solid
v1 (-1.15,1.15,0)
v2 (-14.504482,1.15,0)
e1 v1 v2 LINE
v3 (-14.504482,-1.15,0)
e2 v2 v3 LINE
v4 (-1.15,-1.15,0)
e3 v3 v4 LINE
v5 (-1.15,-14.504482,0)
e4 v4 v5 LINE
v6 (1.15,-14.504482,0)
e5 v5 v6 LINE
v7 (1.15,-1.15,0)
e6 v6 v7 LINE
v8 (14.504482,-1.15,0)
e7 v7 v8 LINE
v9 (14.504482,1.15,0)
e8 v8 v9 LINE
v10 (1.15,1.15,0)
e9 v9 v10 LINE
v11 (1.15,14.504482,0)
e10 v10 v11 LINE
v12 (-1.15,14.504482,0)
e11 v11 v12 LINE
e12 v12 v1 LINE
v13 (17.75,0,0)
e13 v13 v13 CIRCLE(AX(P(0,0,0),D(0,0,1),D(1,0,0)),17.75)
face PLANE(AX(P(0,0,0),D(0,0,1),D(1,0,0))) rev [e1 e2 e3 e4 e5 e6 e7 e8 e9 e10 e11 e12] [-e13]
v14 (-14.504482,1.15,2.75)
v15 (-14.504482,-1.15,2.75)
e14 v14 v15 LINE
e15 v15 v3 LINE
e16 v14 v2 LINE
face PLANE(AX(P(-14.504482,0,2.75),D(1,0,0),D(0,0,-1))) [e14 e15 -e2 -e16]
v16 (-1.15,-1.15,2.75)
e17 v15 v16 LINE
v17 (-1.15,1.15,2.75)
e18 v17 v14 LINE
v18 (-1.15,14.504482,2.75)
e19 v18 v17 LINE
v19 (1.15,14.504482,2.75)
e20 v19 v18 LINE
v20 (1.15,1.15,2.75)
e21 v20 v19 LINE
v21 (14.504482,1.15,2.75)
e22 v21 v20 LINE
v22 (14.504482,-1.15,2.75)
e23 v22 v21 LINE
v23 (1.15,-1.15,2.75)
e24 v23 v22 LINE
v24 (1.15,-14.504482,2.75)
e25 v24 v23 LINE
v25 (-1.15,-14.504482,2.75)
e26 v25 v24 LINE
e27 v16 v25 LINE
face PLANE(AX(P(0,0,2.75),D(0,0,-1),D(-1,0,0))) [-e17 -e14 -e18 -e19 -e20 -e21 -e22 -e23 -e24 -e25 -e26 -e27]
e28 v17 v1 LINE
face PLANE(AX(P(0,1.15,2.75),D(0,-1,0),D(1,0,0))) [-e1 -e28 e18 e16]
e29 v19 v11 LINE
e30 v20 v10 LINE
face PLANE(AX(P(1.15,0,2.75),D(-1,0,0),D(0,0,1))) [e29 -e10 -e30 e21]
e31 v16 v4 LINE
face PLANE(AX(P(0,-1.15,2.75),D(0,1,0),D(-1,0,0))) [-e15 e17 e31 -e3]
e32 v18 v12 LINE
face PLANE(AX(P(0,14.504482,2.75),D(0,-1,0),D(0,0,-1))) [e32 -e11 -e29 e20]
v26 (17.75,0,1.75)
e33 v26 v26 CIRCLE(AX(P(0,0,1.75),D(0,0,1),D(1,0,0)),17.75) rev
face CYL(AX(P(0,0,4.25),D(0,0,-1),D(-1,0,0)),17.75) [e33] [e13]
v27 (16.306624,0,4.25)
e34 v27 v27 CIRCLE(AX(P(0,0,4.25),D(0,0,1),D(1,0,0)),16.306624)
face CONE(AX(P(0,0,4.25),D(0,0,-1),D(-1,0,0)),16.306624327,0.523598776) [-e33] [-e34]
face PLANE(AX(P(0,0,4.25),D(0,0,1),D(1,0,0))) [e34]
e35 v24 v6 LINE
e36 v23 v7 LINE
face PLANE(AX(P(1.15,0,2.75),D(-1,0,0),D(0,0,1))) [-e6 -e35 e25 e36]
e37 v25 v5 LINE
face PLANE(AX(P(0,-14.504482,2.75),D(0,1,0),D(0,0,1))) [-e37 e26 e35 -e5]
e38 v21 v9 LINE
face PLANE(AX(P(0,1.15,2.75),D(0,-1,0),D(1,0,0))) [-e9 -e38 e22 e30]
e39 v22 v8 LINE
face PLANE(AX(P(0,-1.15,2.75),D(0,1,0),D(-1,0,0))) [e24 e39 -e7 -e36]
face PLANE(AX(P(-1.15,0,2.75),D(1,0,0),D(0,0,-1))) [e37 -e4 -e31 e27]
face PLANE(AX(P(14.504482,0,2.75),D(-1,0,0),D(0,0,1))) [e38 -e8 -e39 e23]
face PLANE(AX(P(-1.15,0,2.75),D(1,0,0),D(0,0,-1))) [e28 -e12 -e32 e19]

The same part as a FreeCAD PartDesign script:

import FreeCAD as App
import Part
import Sketcher


def edges_at(feature, points):
    """Names of the edges that pass closest to the given points."""
    edges = feature.Shape.Edges
    near = lambda p: min(range(len(edges)), key=lambda i: edges[i].distToShape(Part.Vertex(*p))[0])
    return sorted({f"Edge{near(p) + 1}" for p in points})

doc = App.newDocument("Part")
body = doc.addObject("PartDesign::Body", "Body")

sketch1 = body.newObject("Sketcher::SketchObject", "Sketch")
sketch1.AttachmentSupport = (doc.getObject("XY_Plane"), [""])
sketch1.MapMode = "FlatFace"
sketch1.addGeometry(Part.Circle(App.Vector(0, 0, 0), App.Vector(0, 0, 1), 18), False)
sketch1.addConstraint([
    Sketcher.Constraint("Coincident", 0, 3, -1, 1),
    Sketcher.Constraint("Diameter", 0, 35.5),
])
pad1 = body.newObject("PartDesign::Pad", "Pad")
pad1.Profile = sketch1
pad1.Length = 4.25

sketch2 = body.newObject("Sketcher::SketchObject", "Sketch001")
sketch2.AttachmentSupport = (doc.getObject("XY_Plane"), [""])
sketch2.MapMode = "FlatFace"
sketch2.addGeometry([
    Part.LineSegment(App.Vector(14.5, 1.1, 0), App.Vector(14.5, -1.1, 0)),
    Part.LineSegment(App.Vector(14.5, -1.1, 0), App.Vector(1.1, -1.1, 0)),
    Part.LineSegment(App.Vector(1.1, -1.1, 0), App.Vector(1.1, -14.5, 0)),
    Part.LineSegment(App.Vector(1.1, -14.5, 0), App.Vector(-1.1, -14.5, 0)),
    Part.LineSegment(App.Vector(-1.1, -14.5, 0), App.Vector(-1.1, -1.1, 0)),
    Part.LineSegment(App.Vector(-1.1, -1.1, 0), App.Vector(-14.5, -1.1, 0)),
    Part.LineSegment(App.Vector(-14.5, -1.1, 0), App.Vector(-14.5, 1.1, 0)),
    Part.LineSegment(App.Vector(-14.5, 1.1, 0), App.Vector(-1.1, 1.1, 0)),
    Part.LineSegment(App.Vector(-1.1, 1.1, 0), App.Vector(-1.1, 14.5, 0)),
    Part.LineSegment(App.Vector(-1.1, 14.5, 0), App.Vector(1.1, 14.5, 0)),
    Part.LineSegment(App.Vector(1.1, 14.5, 0), App.Vector(1.1, 1.1, 0)),
    Part.LineSegment(App.Vector(1.1, 1.1, 0), App.Vector(14.5, 1.1, 0)),
], False)
sketch2.addConstraint([
    Sketcher.Constraint("Coincident", 0, 2, 1, 1),
    Sketcher.Constraint("Coincident", 1, 2, 2, 1),
    Sketcher.Constraint("Coincident", 2, 2, 3, 1),
    Sketcher.Constraint("Coincident", 3, 2, 4, 1),
    Sketcher.Constraint("Coincident", 4, 2, 5, 1),
    Sketcher.Constraint("Coincident", 5, 2, 6, 1),
    Sketcher.Constraint("Coincident", 6, 2, 7, 1),
    Sketcher.Constraint("Coincident", 7, 2, 8, 1),
    Sketcher.Constraint("Coincident", 8, 2, 9, 1),
    Sketcher.Constraint("Coincident", 9, 2, 10, 1),
    Sketcher.Constraint("Coincident", 10, 2, 11, 1),
    Sketcher.Constraint("Coincident", 11, 2, 0, 1),
    Sketcher.Constraint("Vertical", 0),
    Sketcher.Constraint("Horizontal", 1),
    Sketcher.Constraint("Vertical", 2),
    Sketcher.Constraint("Horizontal", 3),
    Sketcher.Constraint("Vertical", 4),
    Sketcher.Constraint("Horizontal", 5),
    Sketcher.Constraint("Vertical", 6),
    Sketcher.Constraint("Horizontal", 7),
    Sketcher.Constraint("Vertical", 8),
    Sketcher.Constraint("Horizontal", 9),
    Sketcher.Constraint("Vertical", 10),
    Sketcher.Constraint("Horizontal", 11),
    Sketcher.Constraint("Symmetric", 0, 2, 6, 2, -1, 1),
    Sketcher.Constraint("Symmetric", 2, 2, 8, 2, -1, 1),
    Sketcher.Constraint("Symmetric", 4, 2, 10, 2, -1, 1),
    Sketcher.Constraint("Symmetric", 1, 2, 4, 2, -2),
    Sketcher.Constraint("Equal", 9, 0),
    Sketcher.Constraint("Equal", 11, 2),
    Sketcher.Constraint("DistanceX", 3, 2, 3, 1, 2.3),
    Sketcher.Constraint("DistanceX", 1, 2, 1, 1, 13.354482),
])
pocket1 = body.newObject("PartDesign::Pocket", "Pocket")
pocket1.Profile = sketch2
pocket1.Length = 2.75
pocket1.Reversed = True
doc.recompute()

chamfer = body.newObject("PartDesign::Chamfer", "Chamfer")
chamfer.Base = (pocket1, edges_at(pocket1, [(-17.75, 0, 4.25)]))
chamfer.ChamferType = "Two distances"
chamfer.Size = 2.5
chamfer.Size2 = 1.443376

doc.recompute()
